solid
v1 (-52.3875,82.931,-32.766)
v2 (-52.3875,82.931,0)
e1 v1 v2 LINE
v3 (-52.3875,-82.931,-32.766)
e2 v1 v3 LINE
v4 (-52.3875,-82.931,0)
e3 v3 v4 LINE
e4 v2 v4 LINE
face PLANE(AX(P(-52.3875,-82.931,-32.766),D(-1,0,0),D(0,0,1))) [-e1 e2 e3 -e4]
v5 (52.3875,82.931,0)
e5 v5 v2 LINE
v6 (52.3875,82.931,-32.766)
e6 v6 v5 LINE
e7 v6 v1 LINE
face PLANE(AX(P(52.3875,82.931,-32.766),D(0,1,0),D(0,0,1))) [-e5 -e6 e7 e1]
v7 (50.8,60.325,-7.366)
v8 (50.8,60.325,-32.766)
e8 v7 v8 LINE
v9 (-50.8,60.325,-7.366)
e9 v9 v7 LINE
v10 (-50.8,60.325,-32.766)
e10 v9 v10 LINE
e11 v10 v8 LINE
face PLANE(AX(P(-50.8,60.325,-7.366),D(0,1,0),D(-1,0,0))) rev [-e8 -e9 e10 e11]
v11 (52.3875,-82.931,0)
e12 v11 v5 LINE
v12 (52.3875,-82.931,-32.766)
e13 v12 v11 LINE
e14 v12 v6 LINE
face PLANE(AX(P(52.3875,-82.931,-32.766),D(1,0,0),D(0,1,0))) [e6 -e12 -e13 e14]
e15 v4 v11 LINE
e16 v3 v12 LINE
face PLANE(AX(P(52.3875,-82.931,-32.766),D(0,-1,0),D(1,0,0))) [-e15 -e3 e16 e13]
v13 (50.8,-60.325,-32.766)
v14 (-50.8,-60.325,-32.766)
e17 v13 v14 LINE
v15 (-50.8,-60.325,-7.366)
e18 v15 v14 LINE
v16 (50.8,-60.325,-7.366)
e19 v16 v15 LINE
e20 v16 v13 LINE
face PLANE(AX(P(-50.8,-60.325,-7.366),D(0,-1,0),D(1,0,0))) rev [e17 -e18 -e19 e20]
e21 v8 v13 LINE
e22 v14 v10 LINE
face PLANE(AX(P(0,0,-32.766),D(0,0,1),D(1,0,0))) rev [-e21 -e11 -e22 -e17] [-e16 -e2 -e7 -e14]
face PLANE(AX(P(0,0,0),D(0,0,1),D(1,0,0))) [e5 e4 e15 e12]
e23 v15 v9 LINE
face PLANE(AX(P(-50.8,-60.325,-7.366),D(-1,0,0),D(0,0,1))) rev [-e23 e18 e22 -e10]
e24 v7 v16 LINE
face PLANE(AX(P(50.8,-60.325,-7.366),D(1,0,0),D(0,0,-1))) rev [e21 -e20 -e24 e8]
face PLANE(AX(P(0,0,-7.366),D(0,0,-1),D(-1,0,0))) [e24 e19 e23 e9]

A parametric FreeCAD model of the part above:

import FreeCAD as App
import Part
import Sketcher
from FreeCAD import Vector
Q = App.Units.Quantity


def add_polygon(sketch, points):
    """Adds a closed chain of lines whose ends are joined by coincident constraints."""
    first, n = sketch.GeometryCount, len(points)
    for a, b in zip(points, points[1:] + points[:1]):
        sketch.addGeometry(Part.LineSegment(App.Vector(*a, 0), App.Vector(*b, 0)), False)
    for i in range(n):
        sketch.addConstraint(Sketcher.Constraint("Coincident", first + i, 2, first + (i + 1) % n, 1))

doc = App.newDocument("Part")
body = doc.addObject("PartDesign::Body", "Body")

# Sketch on XY plane
sketch1 = body.newObject("Sketcher::SketchObject", "Sketch")
sketch1.AttachmentSupport = (doc.getObject("XY_Plane"), [""])
sketch1.MapMode = "FlatFace"
add_polygon(sketch1, [(-52.3875, 82.931), (-52.3875, -82.931), (52.3875, -82.931), (52.3875, 82.931)])  # lines 0-3
sketch1.addConstraint([
    Sketcher.Constraint("Vertical", 0),
    Sketcher.Constraint("Horizontal", 1),
    Sketcher.Constraint("Vertical", 2),
    Sketcher.Constraint("Horizontal", 3),
    Sketcher.Constraint("Symmetric", 0, 2, 2, 2, -1, 1),
    Sketcher.Constraint("DistanceY", 0, 2, 0, 1, Q("6.53 in")),
    Sketcher.Constraint("DistanceX", 1, 1, 1, 2, Q("4.125 in")),
])
pad1 = body.newObject("PartDesign::Pad", "Pad")
pad1.Profile = sketch1
pad1.Length = Q("1.29 in")
pad1.Reversed = True

# Sketch on XY plane
sketch2 = body.newObject("Sketcher::SketchObject", "Sketch001")
sketch2.AttachmentSupport = (doc.getObject("XY_Plane"), [""])
sketch2.MapMode = "FlatFace"
sketch2.AttachmentOffset = App.Placement(Vector(0, 0, -1.29 * 25.4), App.Rotation())
add_polygon(sketch2, [(50.8, 60.325), (50.8, -60.325), (-50.8, -60.325), (-50.8, 60.325)])  # lines 0-3
sketch2.addConstraint([
    Sketcher.Constraint("Vertical", 0),
    Sketcher.Constraint("Horizontal", 1),
    Sketcher.Constraint("Vertical", 2),
    Sketcher.Constraint("Horizontal", 3),
    Sketcher.Constraint("Symmetric", 0, 2, 2, 2, -1, 1),
    Sketcher.Constraint("DistanceX", 1, 2, 1, 1, Q("4 in")),
    Sketcher.Constraint("DistanceY", 0, 2, 0, 1, Q("4.75 in")),
])
pocket1 = body.newObject("PartDesign::Pocket", "Pocket")
pocket1.Profile = sketch2
pocket1.Length = Q("1 in")
pocket1.Reversed = True

doc.recompute()
